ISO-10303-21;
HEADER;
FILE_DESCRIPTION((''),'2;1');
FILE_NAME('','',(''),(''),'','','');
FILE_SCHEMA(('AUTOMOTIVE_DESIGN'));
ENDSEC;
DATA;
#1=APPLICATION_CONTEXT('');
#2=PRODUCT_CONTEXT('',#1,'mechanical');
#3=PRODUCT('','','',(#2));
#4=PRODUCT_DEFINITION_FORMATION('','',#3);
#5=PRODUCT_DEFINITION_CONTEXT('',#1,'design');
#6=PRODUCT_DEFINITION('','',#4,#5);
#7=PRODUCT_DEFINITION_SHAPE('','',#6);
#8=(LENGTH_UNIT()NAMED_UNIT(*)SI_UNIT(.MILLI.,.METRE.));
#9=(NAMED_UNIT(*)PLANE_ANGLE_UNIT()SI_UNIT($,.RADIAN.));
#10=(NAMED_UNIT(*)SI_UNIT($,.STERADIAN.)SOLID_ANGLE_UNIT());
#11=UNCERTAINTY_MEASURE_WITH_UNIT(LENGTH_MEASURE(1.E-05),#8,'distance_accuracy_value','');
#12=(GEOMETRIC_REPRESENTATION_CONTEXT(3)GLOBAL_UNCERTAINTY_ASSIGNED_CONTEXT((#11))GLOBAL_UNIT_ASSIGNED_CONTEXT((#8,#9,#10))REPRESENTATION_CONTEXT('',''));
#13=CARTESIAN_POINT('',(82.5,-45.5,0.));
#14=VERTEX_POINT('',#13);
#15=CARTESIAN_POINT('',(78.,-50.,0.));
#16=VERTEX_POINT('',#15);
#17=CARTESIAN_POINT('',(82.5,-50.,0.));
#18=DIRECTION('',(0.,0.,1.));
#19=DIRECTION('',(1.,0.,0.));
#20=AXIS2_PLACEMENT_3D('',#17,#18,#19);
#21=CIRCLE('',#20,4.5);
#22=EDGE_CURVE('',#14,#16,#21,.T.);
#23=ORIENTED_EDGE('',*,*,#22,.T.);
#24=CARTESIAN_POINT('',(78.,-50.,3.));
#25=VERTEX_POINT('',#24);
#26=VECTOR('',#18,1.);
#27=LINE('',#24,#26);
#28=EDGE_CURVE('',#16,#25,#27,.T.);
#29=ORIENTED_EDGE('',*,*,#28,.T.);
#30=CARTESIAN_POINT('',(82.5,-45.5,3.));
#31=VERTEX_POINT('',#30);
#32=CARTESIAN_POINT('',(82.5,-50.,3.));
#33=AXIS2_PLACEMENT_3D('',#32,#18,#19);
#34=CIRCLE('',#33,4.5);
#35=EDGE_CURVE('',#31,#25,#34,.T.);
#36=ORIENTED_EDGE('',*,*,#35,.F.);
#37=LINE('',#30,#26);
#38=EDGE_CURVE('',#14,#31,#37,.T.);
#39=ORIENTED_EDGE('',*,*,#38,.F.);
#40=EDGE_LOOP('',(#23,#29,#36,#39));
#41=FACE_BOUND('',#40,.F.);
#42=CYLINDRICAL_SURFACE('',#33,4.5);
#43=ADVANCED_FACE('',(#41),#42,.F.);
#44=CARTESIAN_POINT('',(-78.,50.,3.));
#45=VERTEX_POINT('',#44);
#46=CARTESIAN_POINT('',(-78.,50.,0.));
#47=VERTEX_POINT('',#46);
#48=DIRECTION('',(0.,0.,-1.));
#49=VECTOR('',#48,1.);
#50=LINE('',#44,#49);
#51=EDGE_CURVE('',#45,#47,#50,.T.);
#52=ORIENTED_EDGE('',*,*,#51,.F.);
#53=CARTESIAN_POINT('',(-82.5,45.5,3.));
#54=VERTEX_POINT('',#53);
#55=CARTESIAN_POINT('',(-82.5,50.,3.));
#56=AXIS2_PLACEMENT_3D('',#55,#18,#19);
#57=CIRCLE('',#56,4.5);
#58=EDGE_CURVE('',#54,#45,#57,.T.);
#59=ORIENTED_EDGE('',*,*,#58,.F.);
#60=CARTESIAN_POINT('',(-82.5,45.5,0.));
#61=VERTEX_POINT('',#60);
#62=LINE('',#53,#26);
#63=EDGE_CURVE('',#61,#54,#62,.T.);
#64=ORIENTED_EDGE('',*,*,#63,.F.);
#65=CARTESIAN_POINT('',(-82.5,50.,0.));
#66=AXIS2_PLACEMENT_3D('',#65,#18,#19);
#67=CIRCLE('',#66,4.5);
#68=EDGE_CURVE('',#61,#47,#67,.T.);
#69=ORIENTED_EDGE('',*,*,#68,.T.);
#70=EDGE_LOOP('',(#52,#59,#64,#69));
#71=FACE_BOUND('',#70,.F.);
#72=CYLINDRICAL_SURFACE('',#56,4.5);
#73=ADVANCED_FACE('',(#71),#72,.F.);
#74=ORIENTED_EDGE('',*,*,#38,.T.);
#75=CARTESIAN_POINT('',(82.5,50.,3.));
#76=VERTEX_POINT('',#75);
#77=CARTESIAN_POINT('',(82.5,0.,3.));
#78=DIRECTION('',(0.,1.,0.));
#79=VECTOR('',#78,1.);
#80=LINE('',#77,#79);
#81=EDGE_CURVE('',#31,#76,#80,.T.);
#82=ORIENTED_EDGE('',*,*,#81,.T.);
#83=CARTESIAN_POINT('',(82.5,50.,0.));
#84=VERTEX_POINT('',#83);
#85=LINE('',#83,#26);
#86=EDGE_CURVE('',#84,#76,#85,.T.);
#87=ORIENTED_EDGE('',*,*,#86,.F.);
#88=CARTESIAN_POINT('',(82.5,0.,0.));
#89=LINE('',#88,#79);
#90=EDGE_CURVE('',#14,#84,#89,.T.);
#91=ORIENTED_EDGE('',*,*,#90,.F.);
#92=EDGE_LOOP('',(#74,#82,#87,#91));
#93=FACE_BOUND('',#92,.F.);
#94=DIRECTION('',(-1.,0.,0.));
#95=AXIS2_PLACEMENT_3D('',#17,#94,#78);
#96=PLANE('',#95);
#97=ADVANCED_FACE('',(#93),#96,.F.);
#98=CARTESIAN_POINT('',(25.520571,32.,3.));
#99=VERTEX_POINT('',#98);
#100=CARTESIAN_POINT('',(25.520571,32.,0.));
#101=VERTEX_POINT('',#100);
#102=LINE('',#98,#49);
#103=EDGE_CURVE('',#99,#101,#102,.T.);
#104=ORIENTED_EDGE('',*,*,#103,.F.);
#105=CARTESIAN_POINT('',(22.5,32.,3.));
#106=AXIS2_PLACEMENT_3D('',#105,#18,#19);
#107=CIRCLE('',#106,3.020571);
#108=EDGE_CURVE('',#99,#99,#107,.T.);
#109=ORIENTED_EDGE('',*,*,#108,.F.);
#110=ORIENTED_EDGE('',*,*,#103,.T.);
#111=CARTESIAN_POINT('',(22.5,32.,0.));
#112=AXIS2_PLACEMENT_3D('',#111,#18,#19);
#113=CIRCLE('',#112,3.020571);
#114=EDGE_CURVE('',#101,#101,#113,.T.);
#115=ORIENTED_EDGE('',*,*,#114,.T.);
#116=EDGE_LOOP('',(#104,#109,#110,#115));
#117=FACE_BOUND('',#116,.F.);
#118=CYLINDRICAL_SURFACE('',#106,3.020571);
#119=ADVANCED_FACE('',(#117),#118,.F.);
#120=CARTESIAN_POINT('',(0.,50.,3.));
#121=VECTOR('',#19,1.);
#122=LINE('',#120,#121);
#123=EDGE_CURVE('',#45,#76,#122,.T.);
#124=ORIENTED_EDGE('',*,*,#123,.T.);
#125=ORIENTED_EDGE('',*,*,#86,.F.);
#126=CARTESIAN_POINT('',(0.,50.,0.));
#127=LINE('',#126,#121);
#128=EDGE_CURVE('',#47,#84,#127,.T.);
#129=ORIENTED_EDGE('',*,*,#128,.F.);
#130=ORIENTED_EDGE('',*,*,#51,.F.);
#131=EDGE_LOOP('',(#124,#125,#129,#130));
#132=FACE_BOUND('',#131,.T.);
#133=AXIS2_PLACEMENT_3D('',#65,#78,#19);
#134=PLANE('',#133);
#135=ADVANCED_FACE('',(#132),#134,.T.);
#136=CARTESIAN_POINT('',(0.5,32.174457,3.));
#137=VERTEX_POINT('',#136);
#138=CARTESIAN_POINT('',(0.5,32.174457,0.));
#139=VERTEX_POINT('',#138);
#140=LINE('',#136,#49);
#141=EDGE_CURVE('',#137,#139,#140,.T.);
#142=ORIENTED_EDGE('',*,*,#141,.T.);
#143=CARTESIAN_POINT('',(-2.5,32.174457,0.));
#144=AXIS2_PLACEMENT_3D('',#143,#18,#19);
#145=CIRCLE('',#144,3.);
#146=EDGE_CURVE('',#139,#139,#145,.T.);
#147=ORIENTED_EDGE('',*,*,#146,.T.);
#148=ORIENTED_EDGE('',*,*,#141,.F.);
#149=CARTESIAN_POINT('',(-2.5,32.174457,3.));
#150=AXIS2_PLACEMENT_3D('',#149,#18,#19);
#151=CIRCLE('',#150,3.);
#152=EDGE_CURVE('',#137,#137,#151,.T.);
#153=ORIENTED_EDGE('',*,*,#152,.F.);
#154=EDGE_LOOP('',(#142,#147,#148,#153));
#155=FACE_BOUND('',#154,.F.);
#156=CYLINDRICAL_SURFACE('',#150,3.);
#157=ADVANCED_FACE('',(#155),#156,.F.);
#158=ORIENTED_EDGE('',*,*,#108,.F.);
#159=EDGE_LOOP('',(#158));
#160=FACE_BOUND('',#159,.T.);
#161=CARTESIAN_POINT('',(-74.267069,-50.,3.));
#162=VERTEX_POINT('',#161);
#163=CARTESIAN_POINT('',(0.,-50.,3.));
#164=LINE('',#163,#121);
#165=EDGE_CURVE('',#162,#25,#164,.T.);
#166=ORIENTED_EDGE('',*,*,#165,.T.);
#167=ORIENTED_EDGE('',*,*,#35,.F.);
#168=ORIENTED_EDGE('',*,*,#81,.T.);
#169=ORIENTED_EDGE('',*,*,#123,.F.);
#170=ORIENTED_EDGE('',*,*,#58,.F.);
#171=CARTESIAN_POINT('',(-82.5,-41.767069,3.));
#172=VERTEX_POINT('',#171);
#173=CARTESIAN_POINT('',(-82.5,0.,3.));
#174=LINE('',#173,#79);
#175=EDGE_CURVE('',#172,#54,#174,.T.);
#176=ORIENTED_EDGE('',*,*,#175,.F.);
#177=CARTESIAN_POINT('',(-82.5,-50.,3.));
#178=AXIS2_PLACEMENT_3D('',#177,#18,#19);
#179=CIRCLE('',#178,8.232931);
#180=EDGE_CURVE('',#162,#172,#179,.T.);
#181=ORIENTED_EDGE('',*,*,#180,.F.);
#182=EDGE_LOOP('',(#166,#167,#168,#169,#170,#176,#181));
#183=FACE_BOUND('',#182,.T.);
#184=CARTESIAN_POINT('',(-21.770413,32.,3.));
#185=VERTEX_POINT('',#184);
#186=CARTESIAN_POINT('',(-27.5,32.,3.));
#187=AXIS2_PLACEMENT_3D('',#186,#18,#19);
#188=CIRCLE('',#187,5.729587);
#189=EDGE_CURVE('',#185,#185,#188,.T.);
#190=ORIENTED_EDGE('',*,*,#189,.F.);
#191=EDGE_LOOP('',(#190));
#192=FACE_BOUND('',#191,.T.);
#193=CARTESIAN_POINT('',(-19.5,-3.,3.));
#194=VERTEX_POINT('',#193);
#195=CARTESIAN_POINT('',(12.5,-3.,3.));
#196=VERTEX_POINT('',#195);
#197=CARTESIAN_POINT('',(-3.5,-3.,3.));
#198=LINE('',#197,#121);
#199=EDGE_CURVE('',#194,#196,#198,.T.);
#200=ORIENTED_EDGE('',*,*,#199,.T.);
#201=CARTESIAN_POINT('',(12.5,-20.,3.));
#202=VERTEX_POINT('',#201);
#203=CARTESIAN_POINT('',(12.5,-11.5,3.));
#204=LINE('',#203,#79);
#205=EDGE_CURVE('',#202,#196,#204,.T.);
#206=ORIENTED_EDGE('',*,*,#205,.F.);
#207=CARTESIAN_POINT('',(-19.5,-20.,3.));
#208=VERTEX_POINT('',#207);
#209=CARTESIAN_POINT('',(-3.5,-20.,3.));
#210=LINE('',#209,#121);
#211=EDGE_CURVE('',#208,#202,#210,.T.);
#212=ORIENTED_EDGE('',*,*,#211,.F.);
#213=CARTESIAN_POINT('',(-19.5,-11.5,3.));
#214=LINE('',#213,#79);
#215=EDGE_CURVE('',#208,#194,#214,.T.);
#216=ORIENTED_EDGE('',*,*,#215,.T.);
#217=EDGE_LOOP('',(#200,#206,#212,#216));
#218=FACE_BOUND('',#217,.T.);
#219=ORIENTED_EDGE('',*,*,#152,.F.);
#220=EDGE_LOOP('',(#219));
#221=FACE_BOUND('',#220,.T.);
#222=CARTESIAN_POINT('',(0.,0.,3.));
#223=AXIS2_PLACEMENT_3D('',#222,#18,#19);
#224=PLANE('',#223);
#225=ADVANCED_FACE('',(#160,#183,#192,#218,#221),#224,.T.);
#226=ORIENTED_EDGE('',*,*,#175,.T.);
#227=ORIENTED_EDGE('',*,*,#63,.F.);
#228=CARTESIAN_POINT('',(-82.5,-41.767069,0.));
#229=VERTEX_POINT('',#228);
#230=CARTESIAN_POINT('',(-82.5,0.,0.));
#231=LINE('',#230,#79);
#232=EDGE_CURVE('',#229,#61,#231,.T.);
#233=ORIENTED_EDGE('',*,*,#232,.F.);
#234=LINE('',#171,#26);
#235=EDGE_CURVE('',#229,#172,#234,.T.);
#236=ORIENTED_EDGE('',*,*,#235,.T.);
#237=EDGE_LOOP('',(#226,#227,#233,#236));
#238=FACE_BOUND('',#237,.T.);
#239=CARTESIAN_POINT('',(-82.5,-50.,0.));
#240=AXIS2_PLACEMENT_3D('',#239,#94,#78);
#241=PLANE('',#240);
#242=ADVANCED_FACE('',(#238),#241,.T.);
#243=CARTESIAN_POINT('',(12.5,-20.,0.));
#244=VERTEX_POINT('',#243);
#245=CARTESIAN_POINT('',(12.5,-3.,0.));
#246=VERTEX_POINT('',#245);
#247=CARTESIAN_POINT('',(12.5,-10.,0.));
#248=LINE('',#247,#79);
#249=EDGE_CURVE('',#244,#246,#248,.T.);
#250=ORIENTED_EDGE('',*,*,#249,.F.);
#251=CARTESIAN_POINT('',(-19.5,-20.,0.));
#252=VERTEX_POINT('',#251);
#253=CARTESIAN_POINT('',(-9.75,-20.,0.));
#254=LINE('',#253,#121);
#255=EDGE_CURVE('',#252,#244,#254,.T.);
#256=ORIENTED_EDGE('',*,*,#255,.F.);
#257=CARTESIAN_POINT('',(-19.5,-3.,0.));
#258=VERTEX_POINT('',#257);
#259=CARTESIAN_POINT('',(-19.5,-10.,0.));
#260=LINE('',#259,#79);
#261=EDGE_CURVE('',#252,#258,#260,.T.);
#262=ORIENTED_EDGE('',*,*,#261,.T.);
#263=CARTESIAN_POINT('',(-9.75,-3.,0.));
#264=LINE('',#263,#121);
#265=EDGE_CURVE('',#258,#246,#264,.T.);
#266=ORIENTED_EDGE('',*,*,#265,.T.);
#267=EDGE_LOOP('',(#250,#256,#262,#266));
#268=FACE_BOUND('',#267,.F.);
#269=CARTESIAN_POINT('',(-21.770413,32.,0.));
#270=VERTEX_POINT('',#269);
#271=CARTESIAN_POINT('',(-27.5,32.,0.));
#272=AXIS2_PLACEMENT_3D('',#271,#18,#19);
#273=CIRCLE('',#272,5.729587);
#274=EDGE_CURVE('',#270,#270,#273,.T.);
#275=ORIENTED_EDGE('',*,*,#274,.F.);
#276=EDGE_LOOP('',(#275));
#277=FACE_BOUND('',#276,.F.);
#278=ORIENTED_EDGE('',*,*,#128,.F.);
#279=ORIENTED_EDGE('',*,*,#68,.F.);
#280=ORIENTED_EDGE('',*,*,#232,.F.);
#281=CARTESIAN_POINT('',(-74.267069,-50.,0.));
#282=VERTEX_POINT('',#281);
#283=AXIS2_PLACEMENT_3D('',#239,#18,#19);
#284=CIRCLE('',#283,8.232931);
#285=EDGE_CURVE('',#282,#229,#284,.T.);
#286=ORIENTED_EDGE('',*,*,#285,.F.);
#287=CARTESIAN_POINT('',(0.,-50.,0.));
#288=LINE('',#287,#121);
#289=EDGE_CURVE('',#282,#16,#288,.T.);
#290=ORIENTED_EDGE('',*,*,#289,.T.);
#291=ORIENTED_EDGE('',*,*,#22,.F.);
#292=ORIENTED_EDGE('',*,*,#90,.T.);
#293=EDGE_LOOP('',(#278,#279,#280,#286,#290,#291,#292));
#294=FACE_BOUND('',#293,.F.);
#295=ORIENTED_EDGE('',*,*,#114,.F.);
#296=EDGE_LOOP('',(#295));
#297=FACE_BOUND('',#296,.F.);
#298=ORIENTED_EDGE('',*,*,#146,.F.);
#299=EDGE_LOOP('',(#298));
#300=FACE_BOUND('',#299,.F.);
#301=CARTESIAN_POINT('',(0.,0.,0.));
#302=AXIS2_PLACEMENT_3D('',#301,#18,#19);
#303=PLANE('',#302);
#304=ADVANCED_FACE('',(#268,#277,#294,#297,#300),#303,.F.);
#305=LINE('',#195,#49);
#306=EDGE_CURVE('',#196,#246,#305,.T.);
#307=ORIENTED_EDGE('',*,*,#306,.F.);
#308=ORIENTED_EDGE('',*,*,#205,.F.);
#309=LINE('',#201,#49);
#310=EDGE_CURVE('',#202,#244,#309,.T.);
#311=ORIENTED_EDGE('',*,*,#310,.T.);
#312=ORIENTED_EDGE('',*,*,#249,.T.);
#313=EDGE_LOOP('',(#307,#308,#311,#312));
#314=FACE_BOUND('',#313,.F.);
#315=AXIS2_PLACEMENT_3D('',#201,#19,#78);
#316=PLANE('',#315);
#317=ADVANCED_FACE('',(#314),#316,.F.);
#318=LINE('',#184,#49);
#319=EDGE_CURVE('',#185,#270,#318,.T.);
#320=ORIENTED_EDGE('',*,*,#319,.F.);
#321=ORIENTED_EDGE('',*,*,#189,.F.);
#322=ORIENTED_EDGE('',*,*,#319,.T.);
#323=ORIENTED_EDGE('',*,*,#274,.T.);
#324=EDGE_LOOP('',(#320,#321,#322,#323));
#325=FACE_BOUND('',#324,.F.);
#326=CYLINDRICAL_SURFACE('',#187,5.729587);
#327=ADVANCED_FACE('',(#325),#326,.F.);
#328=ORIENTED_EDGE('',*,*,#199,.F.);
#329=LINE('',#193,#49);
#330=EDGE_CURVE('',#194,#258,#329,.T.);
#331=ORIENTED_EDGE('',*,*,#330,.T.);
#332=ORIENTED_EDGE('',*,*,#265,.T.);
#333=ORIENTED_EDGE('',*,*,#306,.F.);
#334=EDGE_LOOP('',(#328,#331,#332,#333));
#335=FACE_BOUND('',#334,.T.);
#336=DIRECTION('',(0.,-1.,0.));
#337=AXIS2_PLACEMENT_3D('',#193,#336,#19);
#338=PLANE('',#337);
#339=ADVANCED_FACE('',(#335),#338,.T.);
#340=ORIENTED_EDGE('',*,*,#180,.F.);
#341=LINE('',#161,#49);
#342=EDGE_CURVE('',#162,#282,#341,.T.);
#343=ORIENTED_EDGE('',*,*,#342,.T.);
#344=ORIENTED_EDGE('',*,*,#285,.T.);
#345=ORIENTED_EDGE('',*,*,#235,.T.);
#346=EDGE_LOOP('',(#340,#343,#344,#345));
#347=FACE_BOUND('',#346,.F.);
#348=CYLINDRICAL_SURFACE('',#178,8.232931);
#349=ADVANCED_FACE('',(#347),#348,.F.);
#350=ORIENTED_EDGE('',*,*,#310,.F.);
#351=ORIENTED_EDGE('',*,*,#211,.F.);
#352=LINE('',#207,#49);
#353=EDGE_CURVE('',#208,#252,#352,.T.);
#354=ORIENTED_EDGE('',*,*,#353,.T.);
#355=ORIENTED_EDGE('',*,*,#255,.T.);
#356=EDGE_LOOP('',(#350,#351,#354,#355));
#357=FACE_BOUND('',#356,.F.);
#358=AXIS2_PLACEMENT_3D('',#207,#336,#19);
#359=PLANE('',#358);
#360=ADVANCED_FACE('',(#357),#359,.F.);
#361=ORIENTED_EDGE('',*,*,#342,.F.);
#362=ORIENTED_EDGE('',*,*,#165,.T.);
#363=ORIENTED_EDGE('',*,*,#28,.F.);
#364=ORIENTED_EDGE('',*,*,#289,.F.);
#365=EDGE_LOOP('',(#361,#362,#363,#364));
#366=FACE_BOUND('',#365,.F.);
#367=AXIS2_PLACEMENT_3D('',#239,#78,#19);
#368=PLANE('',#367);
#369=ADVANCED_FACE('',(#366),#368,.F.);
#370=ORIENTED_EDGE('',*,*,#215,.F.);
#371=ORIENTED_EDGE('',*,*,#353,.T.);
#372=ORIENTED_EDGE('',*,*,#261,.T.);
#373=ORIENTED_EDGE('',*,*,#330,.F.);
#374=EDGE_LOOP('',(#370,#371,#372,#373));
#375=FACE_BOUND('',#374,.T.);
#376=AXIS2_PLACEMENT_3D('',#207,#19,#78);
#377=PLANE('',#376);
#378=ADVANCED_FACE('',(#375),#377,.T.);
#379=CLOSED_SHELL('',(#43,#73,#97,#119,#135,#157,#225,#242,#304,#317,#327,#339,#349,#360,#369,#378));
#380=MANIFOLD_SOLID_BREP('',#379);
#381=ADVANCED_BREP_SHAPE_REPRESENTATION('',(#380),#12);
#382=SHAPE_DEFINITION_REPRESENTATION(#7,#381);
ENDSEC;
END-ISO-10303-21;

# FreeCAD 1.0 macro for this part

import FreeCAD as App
import Part
import Sketcher

V = App.Vector
Q = App.Units.Quantity

doc = App.newDocument("Part")
params = doc.addObject("Spreadsheet::Sheet", "Params")
for row, (alias, value) in enumerate([
    ("sketch1_width", "165 mm"),
    ("sketch1_height", "100 mm"),
    ("pad1_length", "3 mm"),
    ("sketch2_diameter", "6 mm"),
    ("sketch2_diameter2", "9 mm"),
    ("sketch2_width", "32 mm"),
    ("sketch2_height", "17 mm"),
    ("pocket1_length", "25 mm"),
], start=1):
    params.set(f"A{row}", alias)
    params.set(f"B{row}", "=" + value)
    params.setAlias(f"B{row}", alias)

body = doc.addObject("PartDesign::Body", "Body")

sketch1 = body.newObject("Sketcher::SketchObject", "Sketch")
sketch1.AttachmentSupport = (doc.getObject("XY_Plane"), [""])
sketch1.MapMode = "FlatFace"
sketch1.addGeometry([
    Part.LineSegment(V(-82.5, 50, 0), V(-82.5, -50, 0)),
    Part.LineSegment(V(-82.5, -50, 0), V(82.5, -50, 0)),
    Part.LineSegment(V(82.5, -50, 0), V(82.5, 50, 0)),
    Part.LineSegment(V(82.5, 50, 0), V(-82.5, 50, 0)),
], False)
sketch1.addConstraint([
    Sketcher.Constraint("Coincident", 0, 2, 1, 1),
    Sketcher.Constraint("Coincident", 1, 2, 2, 1),
    Sketcher.Constraint("Coincident", 2, 2, 3, 1),
    Sketcher.Constraint("Coincident", 3, 2, 0, 1),
    Sketcher.Constraint("Vertical", 0),
    Sketcher.Constraint("Horizontal", 1),
    Sketcher.Constraint("Vertical", 2),
    Sketcher.Constraint("Horizontal", 3),
    Sketcher.Constraint("Symmetric", 0, 2, 2, 2, -1, 1),
    Sketcher.Constraint("DistanceX", 1, 1, 1, 2, Q("165 mm")),
    Sketcher.Constraint("DistanceY", 0, 2, 0, 1, Q("100 mm")),
])
sketch1.setExpression("Constraints[9]", "Params.sketch1_width")
sketch1.setExpression("Constraints[10]", "Params.sketch1_height")
pad1 = body.newObject("PartDesign::Pad", "Pad")
pad1.Profile = sketch1
pad1.setExpression("Length", "Params.pad1_length")

sketch2 = body.newObject("Sketcher::SketchObject", "Sketch001")
sketch2.AttachmentSupport = (doc.getObject("XY_Plane"), [""])
sketch2.MapMode = "FlatFace"
sketch2.AttachmentOffset = App.Placement(V(0, 0, 3), App.Rotation())
sketch2.addGeometry([
    Part.Circle(V(22.5, 32, 0), V(0, 0, 1), 3.020571),
    Part.Circle(V(-2.5, 32.174457, 0), V(0, 0, 1), 3),
    Part.Circle(V(-27.5, 32, 0), V(0, 0, 1), 5.729587),
    Part.LineSegment(V(-19.5, -3, 0), V(-19.5, -20, 0)),
    Part.LineSegment(V(-19.5, -20, 0), V(12.5, -20, 0)),
    Part.LineSegment(V(12.5, -20, 0), V(12.5, -3, 0)),
    Part.LineSegment(V(12.5, -3, 0), V(-19.5, -3, 0)),
    Part.Circle(V(-82.5, -50, 0), V(0, 0, 1), 8.232931),
    Part.Circle(V(-82.5, 50, 0), V(0, 0, 1), 4.5),
    Part.Circle(V(82.5, -50, 0), V(0, 0, 1), 4.5),
], False)
sketch2.addConstraint([
    Sketcher.Constraint("Coincident", 3, 2, 4, 1),
    Sketcher.Constraint("Coincident", 4, 2, 5, 1),
    Sketcher.Constraint("Coincident", 5, 2, 6, 1),
    Sketcher.Constraint("Coincident", 6, 2, 3, 1),
    Sketcher.Constraint("Vertical", 3),
    Sketcher.Constraint("Horizontal", 4),
    Sketcher.Constraint("Vertical", 5),
    Sketcher.Constraint("Horizontal", 6),
    Sketcher.Constraint("Equal", 8, 9),
    Sketcher.Constraint("Symmetric", 8, 3, 9, 3, -1, 1),
    Sketcher.Constraint("Symmetric", 7, 3, 9, 3, -2),
    Sketcher.Constraint("Horizontal", 0, 3, 2, 3),
    Sketcher.Constraint("Diameter", 1, Q("6 mm")),
    Sketcher.Constraint("Diameter", 8, Q("9 mm")),
    Sketcher.Constraint("DistanceX", 4, 1, 4, 2, Q("32 mm")),
    Sketcher.Constraint("DistanceY", 3, 2, 3, 1, Q("17 mm")),
    Sketcher.Constraint("DistanceY", -1, 1, 0, 3, Q("32 mm")),
    Sketcher.Constraint("DistanceY", 7, 3, -1, 1, Q("50 mm")),
    Sketcher.Constraint("DistanceY", 3, 2, -1, 1, Q("20 mm")),
    Sketcher.Constraint("DistanceX", 1, 3, 0, 3, Q("25 mm")),
    Sketcher.Constraint("DistanceX", 2, 3, 1, 3, Q("25 mm")),
    Sketcher.Constraint("DistanceX", 7, 3, 2, 3, Q("55 mm")),
    Sketcher.Constraint("DistanceX", 0, 3, 9, 3, Q("60 mm")),
    Sketcher.Constraint("DistanceX", 2, 3, 3, 2, Q("8 mm")),
    Sketcher.Constraint("Diameter", 0, Q("6.041142 mm")),
    Sketcher.Constraint("Diameter", 2, Q("11.459174 mm")),
    Sketcher.Constraint("Diameter", 7, Q("16.465862 mm")),
    Sketcher.Constraint("DistanceY", -1, 1, 1, 3, Q("32.174457 mm")),
])
sketch2.setExpression("Constraints[12]", "Params.sketch2_diameter")
sketch2.setExpression("Constraints[13]", "Params.sketch2_diameter2")
sketch2.setExpression("Constraints[14]", "Params.sketch2_width")
sketch2.setExpression("Constraints[15]", "Params.sketch2_height")
pocket1 = body.newObject("PartDesign::Pocket", "Pocket")
pocket1.Profile = sketch2
pocket1.setExpression("Length", "Params.pocket1_length")

doc.recompute()
